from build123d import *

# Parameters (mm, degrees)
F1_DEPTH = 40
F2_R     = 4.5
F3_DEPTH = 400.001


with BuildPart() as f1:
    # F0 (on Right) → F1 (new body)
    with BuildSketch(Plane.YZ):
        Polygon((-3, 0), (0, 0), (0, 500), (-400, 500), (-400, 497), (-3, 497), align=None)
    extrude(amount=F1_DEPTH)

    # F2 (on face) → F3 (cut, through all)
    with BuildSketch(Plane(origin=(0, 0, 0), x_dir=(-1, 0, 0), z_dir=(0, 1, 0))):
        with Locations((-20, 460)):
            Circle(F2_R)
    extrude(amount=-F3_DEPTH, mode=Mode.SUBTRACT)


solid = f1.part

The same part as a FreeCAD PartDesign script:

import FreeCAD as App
import Part
import Sketcher

V = App.Vector
Q = App.Units.Quantity


def add_polygon(sketch, points):
    """Adds a closed chain of lines whose ends are joined by coincident constraints."""
    first, n = sketch.GeometryCount, len(points)
    for a, b in zip(points, points[1:] + points[:1]):
        sketch.addGeometry(Part.LineSegment(App.Vector(*a, 0), App.Vector(*b, 0)), False)
    for i in range(n):
        sketch.addConstraint(Sketcher.Constraint("Coincident", first + i, 2, first + (i + 1) % n, 1))

doc = App.newDocument("Part")
body = doc.addObject("PartDesign::Body", "Body")

sketch1 = body.newObject("Sketcher::SketchObject", "Sketch")
sketch1.AttachmentSupport = (doc.getObject("YZ_Plane"), [""])
sketch1.MapMode = "FlatFace"
add_polygon(sketch1, [(-3, 0), (0, 0), (0, 500), (-400, 500), (-400, 497), (-3, 497)])
sketch1.addConstraint(Sketcher.Constraint("Horizontal", 0))
sketch1.addConstraint(Sketcher.Constraint("Vertical", 1))
sketch1.addConstraint(Sketcher.Constraint("Horizontal", 2))
sketch1.addConstraint(Sketcher.Constraint("Vertical", 3))
sketch1.addConstraint(Sketcher.Constraint("Horizontal", 4))
sketch1.addConstraint(Sketcher.Constraint("Vertical", 5))
sketch1.addConstraint(Sketcher.Constraint("Coincident", 0, 2, -1, 1))
sketch1.addConstraint(Sketcher.Constraint("Equal", 0, 3))
sketch1.addConstraint(Sketcher.Constraint("DistanceX", 0, 1, 0, 2, Q("3 mm")))
sketch1.addConstraint(Sketcher.Constraint("DistanceX", 2, 2, 2, 1, Q("400 mm")))
sketch1.addConstraint(Sketcher.Constraint("DistanceY", 1, 1, 1, 2, Q("500 mm")))
pad1 = body.newObject("PartDesign::Pad", "Pad")
pad1.Profile = sketch1
pad1.Length = 40

sketch2 = body.newObject("Sketcher::SketchObject", "Sketch001")
sketch2.AttachmentSupport = (doc.getObject("XZ_Plane"), [""])
sketch2.MapMode = "FlatFace"
sketch2.addGeometry(Part.Circle(V(20, 460, 0), V(0, 0, 1), 4.5), False)
sketch2.addConstraint(Sketcher.Constraint("Diameter", 0, Q("9 mm")))
sketch2.addConstraint(Sketcher.Constraint("DistanceX", -1, 1, 0, 3, Q("20 mm")))
sketch2.addConstraint(Sketcher.Constraint("DistanceY", -1, 1, 0, 3, Q("460 mm")))
pocket1 = body.newObject("PartDesign::Pocket", "Pocket")
pocket1.Profile = sketch2
pocket1.Type = "ThroughAll"
pocket1.Reversed = True

doc.recompute()
